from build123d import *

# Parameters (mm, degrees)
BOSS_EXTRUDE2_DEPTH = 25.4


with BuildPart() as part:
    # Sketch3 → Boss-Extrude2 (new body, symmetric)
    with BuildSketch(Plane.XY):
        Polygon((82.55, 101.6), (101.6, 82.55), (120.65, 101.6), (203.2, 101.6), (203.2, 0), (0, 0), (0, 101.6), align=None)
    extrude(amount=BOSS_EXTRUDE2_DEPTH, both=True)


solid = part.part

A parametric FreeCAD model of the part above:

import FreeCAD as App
import Part
import Sketcher

V = App.Vector
Q = App.Units.Quantity

doc = App.newDocument("Part")
params = doc.addObject("Spreadsheet::Sheet", "Params")
for row, (alias, value) in enumerate([
    ("sketch1_width", "8 in"),
    ("sketch1_height", "4 in"),
    ("sketch1_width2", "3.25 in"),
    ("pad1_length", "2 in"),
], start=1):
    params.set(f"A{row}", alias)
    params.set(f"B{row}", "=" + value)
    params.setAlias(f"B{row}", alias)

body = doc.addObject("PartDesign::Body", "Body")

sketch1 = doc.addObject("Sketcher::SketchObject", "Sketch")
body.addObject(sketch1)
sketch1.AttachmentSupport = (doc.XY_Plane, [""])
sketch1.MapMode = "FlatFace"
sketch1.addGeometry([
    Part.LineSegment(V(102, 83, 0), V(83, 102, 0)),
    Part.LineSegment(V(83, 102, 0), V(0, 102, 0)),
    Part.LineSegment(V(0, 102, 0), V(0, 0, 0)),
    Part.LineSegment(V(0, 0, 0), V(203, 0, 0)),
    Part.LineSegment(V(203, 0, 0), V(203, 102, 0)),
    Part.LineSegment(V(203, 102, 0), V(121, 102, 0)),
    Part.LineSegment(V(121, 102, 0), V(102, 83, 0)),
], False)
sketch1.addConstraint([
    Sketcher.Constraint("Coincident", 0, 2, 1, 1),
    Sketcher.Constraint("Coincident", 1, 2, 2, 1),
    Sketcher.Constraint("Coincident", 2, 2, 3, 1),
    Sketcher.Constraint("Coincident", 3, 2, 4, 1),
    Sketcher.Constraint("Coincident", 4, 2, 5, 1),
    Sketcher.Constraint("Coincident", 5, 2, 6, 1),
    Sketcher.Constraint("Coincident", 6, 2, 0, 1),
    Sketcher.Constraint("Horizontal", 1),
    Sketcher.Constraint("Vertical", 2),
    Sketcher.Constraint("Horizontal", 3),
    Sketcher.Constraint("Vertical", 4),
    Sketcher.Constraint("Horizontal", 5),
    Sketcher.Constraint("Coincident", 2, 2, -1, 1),
    Sketcher.Constraint("Perpendicular", 0, 6),
    Sketcher.Constraint("Horizontal", 1, 2, 4, 2),
    Sketcher.Constraint("Equal", 1, 5),
    Sketcher.Constraint("Equal", 0, 6),
    Sketcher.Constraint("DistanceX", 3, 1, 3, 2, Q("8 in")),
    Sketcher.Constraint("DistanceY", 2, 2, 2, 1, Q("4 in")),
    Sketcher.Constraint("DistanceX", 1, 2, 1, 1, Q("3.25 in")),
])
sketch1.setExpression("Constraints[17]", "Params.sketch1_width")
sketch1.setExpression("Constraints[18]", "Params.sketch1_height")
sketch1.setExpression("Constraints[19]", "Params.sketch1_width2")
pad1 = doc.addObject("PartDesign::Pad", "Pad")
body.addObject(pad1)
pad1.Profile = sketch1
pad1.setExpression("Length", "Params.pad1_length")
pad1.Midplane = True

doc.recompute()
